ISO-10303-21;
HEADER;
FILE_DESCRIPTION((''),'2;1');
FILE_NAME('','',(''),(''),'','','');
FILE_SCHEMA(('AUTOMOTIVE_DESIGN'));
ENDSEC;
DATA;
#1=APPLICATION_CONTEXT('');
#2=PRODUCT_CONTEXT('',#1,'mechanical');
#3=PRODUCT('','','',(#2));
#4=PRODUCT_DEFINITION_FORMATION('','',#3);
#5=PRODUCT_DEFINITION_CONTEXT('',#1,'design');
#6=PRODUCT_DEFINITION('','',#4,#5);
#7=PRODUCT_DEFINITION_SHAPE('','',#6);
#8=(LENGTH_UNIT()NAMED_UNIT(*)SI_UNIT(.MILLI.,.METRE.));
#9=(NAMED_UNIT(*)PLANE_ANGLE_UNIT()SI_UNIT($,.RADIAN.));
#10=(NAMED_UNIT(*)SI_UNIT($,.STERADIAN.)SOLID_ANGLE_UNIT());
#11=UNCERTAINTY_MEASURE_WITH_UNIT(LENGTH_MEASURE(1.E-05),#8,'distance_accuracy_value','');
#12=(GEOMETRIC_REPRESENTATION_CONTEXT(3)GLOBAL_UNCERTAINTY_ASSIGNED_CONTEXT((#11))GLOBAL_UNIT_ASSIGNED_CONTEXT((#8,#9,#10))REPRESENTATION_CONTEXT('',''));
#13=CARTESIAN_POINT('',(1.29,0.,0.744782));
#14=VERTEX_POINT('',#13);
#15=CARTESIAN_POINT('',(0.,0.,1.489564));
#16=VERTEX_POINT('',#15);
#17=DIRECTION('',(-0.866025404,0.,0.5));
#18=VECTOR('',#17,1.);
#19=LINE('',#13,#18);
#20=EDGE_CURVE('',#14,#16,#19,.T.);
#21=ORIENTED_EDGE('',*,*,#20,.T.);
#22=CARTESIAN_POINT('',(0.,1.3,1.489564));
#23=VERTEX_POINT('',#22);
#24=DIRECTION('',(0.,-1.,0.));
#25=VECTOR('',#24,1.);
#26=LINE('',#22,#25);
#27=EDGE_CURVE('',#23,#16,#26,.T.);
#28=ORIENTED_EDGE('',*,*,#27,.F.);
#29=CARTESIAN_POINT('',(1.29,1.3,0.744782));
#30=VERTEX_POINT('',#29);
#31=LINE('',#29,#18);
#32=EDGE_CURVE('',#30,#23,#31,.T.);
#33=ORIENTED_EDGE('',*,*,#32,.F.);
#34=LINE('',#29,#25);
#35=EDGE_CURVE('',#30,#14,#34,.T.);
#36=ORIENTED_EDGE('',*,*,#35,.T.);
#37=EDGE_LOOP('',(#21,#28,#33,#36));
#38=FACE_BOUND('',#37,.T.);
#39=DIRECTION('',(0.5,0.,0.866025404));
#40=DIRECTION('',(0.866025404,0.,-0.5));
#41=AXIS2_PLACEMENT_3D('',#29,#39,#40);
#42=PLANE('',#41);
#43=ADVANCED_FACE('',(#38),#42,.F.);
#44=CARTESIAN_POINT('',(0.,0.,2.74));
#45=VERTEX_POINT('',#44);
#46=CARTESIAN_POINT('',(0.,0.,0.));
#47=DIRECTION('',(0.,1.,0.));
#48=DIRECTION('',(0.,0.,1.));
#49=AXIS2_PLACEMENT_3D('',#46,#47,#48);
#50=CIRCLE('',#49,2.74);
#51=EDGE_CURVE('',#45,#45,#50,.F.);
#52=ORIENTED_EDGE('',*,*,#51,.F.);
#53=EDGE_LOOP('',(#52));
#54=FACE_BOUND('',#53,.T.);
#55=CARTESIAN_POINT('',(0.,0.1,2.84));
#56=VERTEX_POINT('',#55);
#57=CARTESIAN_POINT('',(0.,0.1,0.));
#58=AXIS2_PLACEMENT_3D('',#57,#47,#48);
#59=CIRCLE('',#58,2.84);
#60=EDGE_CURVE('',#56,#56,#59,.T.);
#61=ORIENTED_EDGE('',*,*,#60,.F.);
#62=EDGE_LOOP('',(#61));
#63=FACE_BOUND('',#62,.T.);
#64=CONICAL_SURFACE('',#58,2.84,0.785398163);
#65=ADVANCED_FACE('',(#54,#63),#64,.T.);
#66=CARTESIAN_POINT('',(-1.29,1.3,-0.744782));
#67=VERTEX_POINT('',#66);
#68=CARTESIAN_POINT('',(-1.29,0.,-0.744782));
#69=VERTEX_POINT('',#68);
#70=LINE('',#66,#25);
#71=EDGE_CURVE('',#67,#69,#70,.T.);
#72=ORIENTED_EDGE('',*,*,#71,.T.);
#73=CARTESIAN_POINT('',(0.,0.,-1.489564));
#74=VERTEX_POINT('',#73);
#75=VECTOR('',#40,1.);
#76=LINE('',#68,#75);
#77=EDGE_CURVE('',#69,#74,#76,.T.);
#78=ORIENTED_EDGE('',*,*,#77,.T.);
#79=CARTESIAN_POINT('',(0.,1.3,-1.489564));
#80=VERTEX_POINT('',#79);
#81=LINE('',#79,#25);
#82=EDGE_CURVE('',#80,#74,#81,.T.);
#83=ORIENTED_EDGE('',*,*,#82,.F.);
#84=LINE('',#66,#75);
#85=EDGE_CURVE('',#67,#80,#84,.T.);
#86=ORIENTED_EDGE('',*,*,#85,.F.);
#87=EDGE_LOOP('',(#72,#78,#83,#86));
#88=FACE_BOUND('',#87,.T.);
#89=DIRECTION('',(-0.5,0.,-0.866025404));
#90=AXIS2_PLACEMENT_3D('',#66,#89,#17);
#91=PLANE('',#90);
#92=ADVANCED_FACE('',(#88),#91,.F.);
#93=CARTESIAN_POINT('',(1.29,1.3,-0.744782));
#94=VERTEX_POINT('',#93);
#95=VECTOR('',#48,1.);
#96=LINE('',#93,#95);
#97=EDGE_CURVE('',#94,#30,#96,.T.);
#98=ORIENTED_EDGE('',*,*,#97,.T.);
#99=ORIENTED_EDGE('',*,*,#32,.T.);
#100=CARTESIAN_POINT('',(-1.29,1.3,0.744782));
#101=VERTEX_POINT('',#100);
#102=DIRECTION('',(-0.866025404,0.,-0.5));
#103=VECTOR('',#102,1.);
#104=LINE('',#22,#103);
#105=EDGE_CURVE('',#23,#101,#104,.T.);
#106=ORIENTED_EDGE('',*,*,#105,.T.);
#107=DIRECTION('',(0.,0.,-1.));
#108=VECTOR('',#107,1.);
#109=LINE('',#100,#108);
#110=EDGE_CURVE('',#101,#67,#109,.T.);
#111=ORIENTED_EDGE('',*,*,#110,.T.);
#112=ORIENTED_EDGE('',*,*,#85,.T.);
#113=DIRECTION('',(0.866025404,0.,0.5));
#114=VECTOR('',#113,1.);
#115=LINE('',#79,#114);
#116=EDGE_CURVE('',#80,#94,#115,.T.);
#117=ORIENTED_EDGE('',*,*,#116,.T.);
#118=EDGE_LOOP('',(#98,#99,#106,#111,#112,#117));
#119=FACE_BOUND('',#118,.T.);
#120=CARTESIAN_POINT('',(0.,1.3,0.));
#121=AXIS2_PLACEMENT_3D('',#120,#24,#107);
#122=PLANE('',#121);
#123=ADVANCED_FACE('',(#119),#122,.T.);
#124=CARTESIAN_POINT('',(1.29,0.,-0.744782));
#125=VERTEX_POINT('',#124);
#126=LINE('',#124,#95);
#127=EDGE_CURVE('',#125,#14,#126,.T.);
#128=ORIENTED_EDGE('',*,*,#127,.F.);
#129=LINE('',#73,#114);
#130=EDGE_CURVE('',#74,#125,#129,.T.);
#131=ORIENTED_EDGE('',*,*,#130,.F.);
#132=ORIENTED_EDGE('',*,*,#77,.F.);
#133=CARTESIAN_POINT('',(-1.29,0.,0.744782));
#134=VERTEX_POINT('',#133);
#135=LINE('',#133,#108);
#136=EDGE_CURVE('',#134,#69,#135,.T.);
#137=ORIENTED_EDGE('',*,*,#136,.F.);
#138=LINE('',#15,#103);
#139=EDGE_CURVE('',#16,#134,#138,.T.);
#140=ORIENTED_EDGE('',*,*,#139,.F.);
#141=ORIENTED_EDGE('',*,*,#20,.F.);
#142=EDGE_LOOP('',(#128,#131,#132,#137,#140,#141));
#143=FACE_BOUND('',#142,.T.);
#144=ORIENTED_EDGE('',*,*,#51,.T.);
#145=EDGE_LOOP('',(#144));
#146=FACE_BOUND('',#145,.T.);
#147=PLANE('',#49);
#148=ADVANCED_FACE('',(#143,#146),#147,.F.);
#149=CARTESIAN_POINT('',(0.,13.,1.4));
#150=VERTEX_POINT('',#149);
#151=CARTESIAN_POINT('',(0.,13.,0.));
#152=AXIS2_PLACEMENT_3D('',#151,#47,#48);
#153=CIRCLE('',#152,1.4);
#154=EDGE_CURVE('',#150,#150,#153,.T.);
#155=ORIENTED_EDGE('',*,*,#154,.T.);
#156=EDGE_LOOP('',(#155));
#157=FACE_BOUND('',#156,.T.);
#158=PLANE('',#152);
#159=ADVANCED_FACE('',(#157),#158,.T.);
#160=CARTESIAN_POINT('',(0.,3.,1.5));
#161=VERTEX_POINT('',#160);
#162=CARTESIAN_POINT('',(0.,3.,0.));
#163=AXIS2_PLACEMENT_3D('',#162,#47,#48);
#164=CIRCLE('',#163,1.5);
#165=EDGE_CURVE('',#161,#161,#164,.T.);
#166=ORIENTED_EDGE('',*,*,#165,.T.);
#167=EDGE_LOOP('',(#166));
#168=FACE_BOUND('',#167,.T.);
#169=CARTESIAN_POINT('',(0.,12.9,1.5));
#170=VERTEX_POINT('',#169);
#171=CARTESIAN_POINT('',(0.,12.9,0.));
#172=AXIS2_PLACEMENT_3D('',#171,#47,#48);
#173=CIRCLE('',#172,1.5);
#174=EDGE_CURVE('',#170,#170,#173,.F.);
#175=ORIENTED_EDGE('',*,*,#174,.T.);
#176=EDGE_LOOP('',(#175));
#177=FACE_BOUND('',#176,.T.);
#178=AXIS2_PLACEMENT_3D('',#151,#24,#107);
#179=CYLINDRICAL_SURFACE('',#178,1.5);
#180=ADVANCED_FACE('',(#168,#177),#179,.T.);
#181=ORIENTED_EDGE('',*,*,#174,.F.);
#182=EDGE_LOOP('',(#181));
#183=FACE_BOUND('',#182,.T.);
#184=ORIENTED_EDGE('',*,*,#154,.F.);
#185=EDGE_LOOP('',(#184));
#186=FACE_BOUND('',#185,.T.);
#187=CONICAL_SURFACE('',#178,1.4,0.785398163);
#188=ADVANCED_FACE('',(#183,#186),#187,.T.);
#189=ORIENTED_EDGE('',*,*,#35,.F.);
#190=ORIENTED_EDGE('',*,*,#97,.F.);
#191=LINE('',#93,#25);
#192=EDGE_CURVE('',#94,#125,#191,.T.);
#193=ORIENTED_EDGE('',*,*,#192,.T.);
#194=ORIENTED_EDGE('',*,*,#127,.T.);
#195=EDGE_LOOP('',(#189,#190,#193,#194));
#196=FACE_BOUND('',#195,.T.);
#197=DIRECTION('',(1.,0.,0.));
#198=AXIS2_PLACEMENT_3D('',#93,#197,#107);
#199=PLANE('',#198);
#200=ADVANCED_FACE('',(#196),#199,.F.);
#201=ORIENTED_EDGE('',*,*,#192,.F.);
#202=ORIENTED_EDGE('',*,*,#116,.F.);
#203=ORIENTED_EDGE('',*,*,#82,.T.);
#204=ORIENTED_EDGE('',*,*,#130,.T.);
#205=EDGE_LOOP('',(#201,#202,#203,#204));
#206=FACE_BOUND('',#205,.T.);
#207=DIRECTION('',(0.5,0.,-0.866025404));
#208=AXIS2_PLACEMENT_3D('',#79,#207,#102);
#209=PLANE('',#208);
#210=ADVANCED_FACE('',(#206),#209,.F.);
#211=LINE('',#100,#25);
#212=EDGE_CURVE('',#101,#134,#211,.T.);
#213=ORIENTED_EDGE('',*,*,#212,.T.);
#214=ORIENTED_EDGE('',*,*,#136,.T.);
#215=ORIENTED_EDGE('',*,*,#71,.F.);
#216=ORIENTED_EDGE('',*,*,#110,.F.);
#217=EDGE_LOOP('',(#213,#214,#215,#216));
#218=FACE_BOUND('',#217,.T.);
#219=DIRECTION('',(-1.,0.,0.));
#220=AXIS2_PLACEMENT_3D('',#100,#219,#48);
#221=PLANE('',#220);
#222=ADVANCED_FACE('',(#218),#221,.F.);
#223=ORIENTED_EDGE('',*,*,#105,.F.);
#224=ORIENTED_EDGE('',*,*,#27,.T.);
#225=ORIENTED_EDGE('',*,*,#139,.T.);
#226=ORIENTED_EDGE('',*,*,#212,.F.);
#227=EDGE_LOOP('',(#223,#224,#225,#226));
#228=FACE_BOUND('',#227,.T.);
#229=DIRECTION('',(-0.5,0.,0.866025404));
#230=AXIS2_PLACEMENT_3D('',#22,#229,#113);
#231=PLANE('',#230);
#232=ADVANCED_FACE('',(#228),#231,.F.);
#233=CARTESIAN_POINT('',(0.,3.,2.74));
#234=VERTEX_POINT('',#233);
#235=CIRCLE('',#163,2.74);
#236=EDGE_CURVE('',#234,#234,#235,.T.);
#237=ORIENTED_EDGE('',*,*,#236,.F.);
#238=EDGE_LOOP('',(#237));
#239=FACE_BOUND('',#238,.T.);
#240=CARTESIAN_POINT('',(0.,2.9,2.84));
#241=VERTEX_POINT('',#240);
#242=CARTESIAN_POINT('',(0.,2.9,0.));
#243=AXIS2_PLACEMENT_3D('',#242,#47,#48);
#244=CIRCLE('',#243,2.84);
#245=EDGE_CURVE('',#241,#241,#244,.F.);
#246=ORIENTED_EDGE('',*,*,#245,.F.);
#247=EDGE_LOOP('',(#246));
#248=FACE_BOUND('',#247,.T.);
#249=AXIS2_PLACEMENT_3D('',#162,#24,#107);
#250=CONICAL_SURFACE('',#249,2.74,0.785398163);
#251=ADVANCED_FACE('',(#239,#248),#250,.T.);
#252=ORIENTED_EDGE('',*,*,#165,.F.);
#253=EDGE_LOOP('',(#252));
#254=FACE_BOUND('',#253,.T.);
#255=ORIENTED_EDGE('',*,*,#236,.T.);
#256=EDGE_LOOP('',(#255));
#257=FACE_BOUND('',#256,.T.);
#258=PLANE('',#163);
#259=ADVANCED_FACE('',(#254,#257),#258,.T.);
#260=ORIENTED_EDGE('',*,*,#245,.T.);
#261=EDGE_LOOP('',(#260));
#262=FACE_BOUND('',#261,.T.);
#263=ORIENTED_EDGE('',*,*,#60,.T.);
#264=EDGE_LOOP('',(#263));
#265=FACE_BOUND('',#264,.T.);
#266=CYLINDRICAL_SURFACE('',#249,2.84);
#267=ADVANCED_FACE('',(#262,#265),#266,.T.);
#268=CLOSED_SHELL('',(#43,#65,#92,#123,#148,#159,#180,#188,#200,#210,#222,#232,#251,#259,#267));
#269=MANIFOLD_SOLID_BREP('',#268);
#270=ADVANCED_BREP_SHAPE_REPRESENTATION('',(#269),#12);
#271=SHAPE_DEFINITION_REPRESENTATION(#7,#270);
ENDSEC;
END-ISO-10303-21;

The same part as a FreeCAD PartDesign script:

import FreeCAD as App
import Part
import Sketcher

V = App.Vector
Q = App.Units.Quantity


def edges_at(feature, points):
    """Names of the edges that pass closest to the given points."""
    edges = feature.Shape.Edges
    near = lambda p: min(range(len(edges)), key=lambda i: edges[i].distToShape(Part.Vertex(*p))[0])
    return sorted({f"Edge{near(p) + 1}" for p in points})

doc = App.newDocument("Part")
params = doc.addObject("Spreadsheet::Sheet", "Params")
for row, (alias, value) in enumerate([
    ("sketch1_diameter", "5.68 mm"),
    ("pad1_length", "3 mm"),
    ("sketch2_diameter", "3 mm"),
    ("pad2_length", "10 mm"),
    ("pocket1_length", "1.3 mm"),
    ("chamfer_size", "0.1 mm"),
], start=1):
    params.set(f"A{row}", alias)
    params.set(f"B{row}", "=" + value)
    params.setAlias(f"B{row}", alias)

body = doc.addObject("PartDesign::Body", "Body")

sketch1 = body.newObject("Sketcher::SketchObject", "Sketch")
sketch1.AttachmentSupport = (doc.getObject("XZ_Plane"), [""])
sketch1.MapMode = "FlatFace"
sketch1.addGeometry(Part.Circle(V(0, 0, 0), V(0, 0, 1), 2.8), False)
sketch1.addConstraint([
    Sketcher.Constraint("Coincident", 0, 3, -1, 1),
    Sketcher.Constraint("Diameter", 0, Q("5.68 mm")),
])
sketch1.setExpression("Constraints[1]", "Params.sketch1_diameter")
pad1 = body.newObject("PartDesign::Pad", "Pad")
pad1.Profile = sketch1
pad1.setExpression("Length", "Params.pad1_length")
pad1.Reversed = True

sketch2 = body.newObject("Sketcher::SketchObject", "Sketch001")
sketch2.AttachmentSupport = (doc.getObject("XZ_Plane"), [""])
sketch2.MapMode = "FlatFace"
sketch2.AttachmentOffset = App.Placement(V(0, 0, -3), App.Rotation())
sketch2.addGeometry(Part.Circle(V(0, 0, 0), V(0, 0, 1), 1.5), False)
sketch2.addConstraint([
    Sketcher.Constraint("Coincident", 0, 3, -1, 1),
    Sketcher.Constraint("Diameter", 0, Q("3 mm")),
])
sketch2.setExpression("Constraints[1]", "Params.sketch2_diameter")
pad2 = body.newObject("PartDesign::Pad", "Pad001")
pad2.Profile = sketch2
pad2.setExpression("Length", "Params.pad2_length")
pad2.Reversed = True

sketch3 = body.newObject("Sketcher::SketchObject", "Sketch002")
sketch3.AttachmentSupport = (doc.getObject("XZ_Plane"), [""])
sketch3.MapMode = "FlatFace"
sketch3.addGeometry([
    Part.LineSegment(V(1.3, -0.7, 0), V(1.3, 0.7, 0)),
    Part.LineSegment(V(1.3, 0.7, 0), V(0, 1.5, 0)),
    Part.LineSegment(V(0, 1.5, 0), V(-1.3, 0.7, 0)),
    Part.LineSegment(V(-1.3, 0.7, 0), V(-1.3, -0.7, 0)),
    Part.LineSegment(V(-1.3, -0.7, 0), V(0, -1.5, 0)),
    Part.LineSegment(V(0, -1.5, 0), V(1.3, -0.7, 0)),
], False)
sketch3.addConstraint([
    Sketcher.Constraint("Coincident", 0, 2, 1, 1),
    Sketcher.Constraint("Coincident", 1, 2, 2, 1),
    Sketcher.Constraint("Coincident", 2, 2, 3, 1),
    Sketcher.Constraint("Coincident", 3, 2, 4, 1),
    Sketcher.Constraint("Coincident", 4, 2, 5, 1),
    Sketcher.Constraint("Coincident", 5, 2, 0, 1),
    Sketcher.Constraint("Vertical", 0),
    Sketcher.Constraint("Vertical", 3),
    Sketcher.Constraint("Symmetric", 0, 2, 3, 2, -1, 1),
    Sketcher.Constraint("Symmetric", 1, 2, 4, 2, -1, 1),
    Sketcher.Constraint("PointOnObject", 1, 2, -2),
    Sketcher.Constraint("Parallel", 2, 5),
    Sketcher.Constraint("Horizontal", 0, 2, 2, 2),
    Sketcher.Constraint("Angle", 1, Q("150 deg")),
    Sketcher.Constraint("DistanceX", -1, 1, 0, 2, Q("1.29 mm")),
    Sketcher.Constraint("DistanceY", 0, 1, 0, 2, Q("1.489564 mm")),
])
pocket1 = body.newObject("PartDesign::Pocket", "Pocket")
pocket1.Profile = sketch3
pocket1.setExpression("Length", "Params.pocket1_length")
doc.recompute()

chamfer = body.newObject("PartDesign::Chamfer", "Chamfer")
chamfer.Base = (pocket1, edges_at(pocket1, [(0, 0, -2.84), (0, 3, -2.84), (0, 13, -1.5)]))
chamfer.setExpression("Size", "Params.chamfer_size")

doc.recompute()
